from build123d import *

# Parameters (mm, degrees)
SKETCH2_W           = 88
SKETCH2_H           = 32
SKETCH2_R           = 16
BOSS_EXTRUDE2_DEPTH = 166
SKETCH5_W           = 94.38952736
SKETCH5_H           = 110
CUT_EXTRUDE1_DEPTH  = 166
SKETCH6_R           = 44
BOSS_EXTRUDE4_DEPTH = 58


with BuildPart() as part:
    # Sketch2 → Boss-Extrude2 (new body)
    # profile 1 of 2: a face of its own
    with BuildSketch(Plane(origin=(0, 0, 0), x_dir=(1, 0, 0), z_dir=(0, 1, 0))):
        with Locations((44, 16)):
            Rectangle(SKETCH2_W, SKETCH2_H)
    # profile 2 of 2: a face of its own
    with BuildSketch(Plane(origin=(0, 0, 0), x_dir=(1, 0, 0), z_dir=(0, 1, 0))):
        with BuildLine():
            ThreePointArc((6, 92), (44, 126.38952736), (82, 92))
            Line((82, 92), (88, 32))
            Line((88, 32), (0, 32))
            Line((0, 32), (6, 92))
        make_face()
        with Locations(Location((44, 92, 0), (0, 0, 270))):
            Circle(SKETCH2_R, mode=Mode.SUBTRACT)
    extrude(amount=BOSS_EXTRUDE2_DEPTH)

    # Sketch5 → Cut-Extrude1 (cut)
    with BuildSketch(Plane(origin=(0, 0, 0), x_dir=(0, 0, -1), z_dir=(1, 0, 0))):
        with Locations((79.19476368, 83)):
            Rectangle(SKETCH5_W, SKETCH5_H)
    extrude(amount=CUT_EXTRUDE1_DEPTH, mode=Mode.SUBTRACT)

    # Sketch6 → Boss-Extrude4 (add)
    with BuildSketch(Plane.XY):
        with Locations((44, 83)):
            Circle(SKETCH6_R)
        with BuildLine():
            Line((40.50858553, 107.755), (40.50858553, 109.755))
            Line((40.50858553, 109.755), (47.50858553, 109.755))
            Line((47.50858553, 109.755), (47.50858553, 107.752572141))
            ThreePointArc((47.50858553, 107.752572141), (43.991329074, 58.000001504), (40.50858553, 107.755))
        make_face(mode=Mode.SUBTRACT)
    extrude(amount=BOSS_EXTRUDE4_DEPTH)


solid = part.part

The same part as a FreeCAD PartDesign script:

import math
import FreeCAD as App
import Part
import Sketcher
from FreeCAD import Vector
Q = App.Units.Quantity

doc = App.newDocument("Part")
body = doc.addObject("PartDesign::Body", "Body")

sketch1 = doc.addObject("Sketcher::SketchObject", "Sketch")
body.addObject(sketch1)
sketch1.AttachmentSupport = (doc.XZ_Plane, [""])
sketch1.MapMode = "FlatFace"
sketch1.addGeometry(Part.LineSegment(Vector(0, -32, 0), Vector(0, 0, 0)), False)
sketch1.addGeometry(Part.LineSegment(Vector(0, 0, 0), Vector(88, 0, 0)), False)
sketch1.addGeometry(Part.LineSegment(Vector(88, 0, 0), Vector(88, -32, 0)), False)
sketch1.addGeometry(Part.LineSegment(Vector(88, -32, 0), Vector(82, -92, 0)), False)
sketch1.addGeometry(Part.ArcOfCircle(Part.Circle(Vector(44, -88, 0), Vector(0, 0, 1), 38), math.radians(-174), math.radians(-6)), False)
sketch1.addGeometry(Part.LineSegment(Vector(6, -92, 0), Vector(0, -32, 0)), False)
sketch1.addGeometry(Part.Circle(Vector(44, -92, 0), Vector(0, 0, 1), 16), False)
sketch1.addConstraint(Sketcher.Constraint("Coincident", 0, 2, 1, 1))
sketch1.addConstraint(Sketcher.Constraint("Coincident", 1, 2, 2, 1))
sketch1.addConstraint(Sketcher.Constraint("Coincident", 2, 2, 3, 1))
sketch1.addConstraint(Sketcher.Constraint("Tangent", 3, 2, 4, 2))
sketch1.addConstraint(Sketcher.Constraint("Tangent", 4, 1, 5, 1))
sketch1.addConstraint(Sketcher.Constraint("Coincident", 5, 2, 0, 1))
sketch1.addConstraint(Sketcher.Constraint("Vertical", 0))
sketch1.addConstraint(Sketcher.Constraint("Horizontal", 1))
sketch1.addConstraint(Sketcher.Constraint("Vertical", 2))
sketch1.addConstraint(Sketcher.Constraint("Coincident", 0, 2, -1, 1))
sketch1.addConstraint(Sketcher.Constraint("Horizontal", 6, 3, 3, 2))
sketch1.addConstraint(Sketcher.Constraint("Horizontal", 3, 2, 4, 1))
sketch1.addConstraint(Sketcher.Constraint("Horizontal", 2, 2, 5, 2))
sketch1.addConstraint(Sketcher.Constraint("Vertical", 4, 3, 6, 3))
sketch1.addConstraint(Sketcher.Constraint("Diameter", 6, Q("32 mm")))
sketch1.addConstraint(Sketcher.Constraint("DistanceX", 1, 1, 1, 2, Q("88 mm")))
sketch1.addConstraint(Sketcher.Constraint("DistanceY", 0, 1, 0, 2, Q("32 mm")))
sketch1.addConstraint(Sketcher.Constraint("DistanceY", 6, 3, -1, 1, Q("92 mm")))
sketch1.addConstraint(Sketcher.Constraint("DistanceX", -1, 1, 3, 2, Q("82 mm")))
pad1 = doc.addObject("PartDesign::Pad", "Pad")
body.addObject(pad1)
pad1.Profile = sketch1
pad1.Length = 166
pad1.Reversed = True

sketch2 = doc.addObject("Sketcher::SketchObject", "Sketch001")
body.addObject(sketch2)
sketch2.AttachmentSupport = (doc.YZ_Plane, [""])
sketch2.MapMode = "FlatFace"
sketch2.addGeometry(Part.LineSegment(Vector(138, -32, 0), Vector(28, -32, 0)), False)
sketch2.addGeometry(Part.LineSegment(Vector(28, -32, 0), Vector(28, -126, 0)), False)
sketch2.addGeometry(Part.LineSegment(Vector(28, -126, 0), Vector(138, -126, 0)), False)
sketch2.addGeometry(Part.LineSegment(Vector(138, -126, 0), Vector(138, -32, 0)), False)
sketch2.addConstraint(Sketcher.Constraint("Coincident", 0, 2, 1, 1))
sketch2.addConstraint(Sketcher.Constraint("Coincident", 1, 2, 2, 1))
sketch2.addConstraint(Sketcher.Constraint("Coincident", 2, 2, 3, 1))
sketch2.addConstraint(Sketcher.Constraint("Coincident", 3, 2, 0, 1))
sketch2.addConstraint(Sketcher.Constraint("Horizontal", 0))
sketch2.addConstraint(Sketcher.Constraint("Vertical", 1))
sketch2.addConstraint(Sketcher.Constraint("Horizontal", 2))
sketch2.addConstraint(Sketcher.Constraint("Vertical", 3))
sketch2.addConstraint(Sketcher.Constraint("DistanceX", 0, 2, 0, 1, Q("110 mm")))
sketch2.addConstraint(Sketcher.Constraint("DistanceX", -1, 1, 0, 2, Q("28 mm")))
sketch2.addConstraint(Sketcher.Constraint("DistanceY", 0, 2, -1, 1, Q("32 mm")))
sketch2.addConstraint(Sketcher.Constraint("DistanceY", 1, 2, 1, 1, Q("94.389527 mm")))
pocket1 = doc.addObject("PartDesign::Pocket", "Pocket")
body.addObject(pocket1)
pocket1.Profile = sketch2
pocket1.Length = 166
pocket1.Reversed = True

sketch3 = doc.addObject("Sketcher::SketchObject", "Sketch002")
body.addObject(sketch3)
sketch3.AttachmentSupport = (doc.XY_Plane, [""])
sketch3.MapMode = "FlatFace"
sketch3.addGeometry(Part.Circle(Vector(44, 83, 0), Vector(0, 0, 1), 44), False)
sketch3.addGeometry(Part.ArcOfCircle(Part.Circle(Vector(44, 83, 0), Vector(0, 0, 1), 25), math.radians(98), math.radians(442)), False)
sketch3.addGeometry(Part.LineSegment(Vector(40.5, 107.8, 0), Vector(40.5, 109.8, 0)), False)
sketch3.addGeometry(Part.LineSegment(Vector(40.5, 109.8, 0), Vector(47.5, 109.8, 0)), False)
sketch3.addGeometry(Part.LineSegment(Vector(47.5, 109.8, 0), Vector(47.5, 107.8, 0)), False)
sketch3.addConstraint(Sketcher.Constraint("Coincident", 1, 1, 2, 1))
sketch3.addConstraint(Sketcher.Constraint("Coincident", 2, 2, 3, 1))
sketch3.addConstraint(Sketcher.Constraint("Coincident", 3, 2, 4, 1))
sketch3.addConstraint(Sketcher.Constraint("Coincident", 4, 2, 1, 2))
sketch3.addConstraint(Sketcher.Constraint("Vertical", 2))
sketch3.addConstraint(Sketcher.Constraint("Horizontal", 3))
sketch3.addConstraint(Sketcher.Constraint("Vertical", 4))
sketch3.addConstraint(Sketcher.Constraint("Coincident", 1, 3, 0, 3))
sketch3.addConstraint(Sketcher.Constraint("Diameter", 0, Q("88 mm")))
sketch3.addConstraint(Sketcher.Constraint("Radius", 1, Q("25 mm")))
sketch3.addConstraint(Sketcher.Constraint("DistanceX", 3, 1, 3, 2, Q("7 mm")))
sketch3.addConstraint(Sketcher.Constraint("DistanceY", 2, 1, 2, 2, Q("2 mm")))
sketch3.addConstraint(Sketcher.Constraint("DistanceX", -1, 1, 0, 3, Q("44 mm")))
sketch3.addConstraint(Sketcher.Constraint("DistanceY", -1, 1, 0, 3, Q("83 mm")))
sketch3.addConstraint(Sketcher.Constraint("DistanceY", -1, 1, 1, 1, Q("107.755 mm")))
pad2 = doc.addObject("PartDesign::Pad", "Pad001")
body.addObject(pad2)
pad2.Profile = sketch3
pad2.Length = 58

doc.recompute()
